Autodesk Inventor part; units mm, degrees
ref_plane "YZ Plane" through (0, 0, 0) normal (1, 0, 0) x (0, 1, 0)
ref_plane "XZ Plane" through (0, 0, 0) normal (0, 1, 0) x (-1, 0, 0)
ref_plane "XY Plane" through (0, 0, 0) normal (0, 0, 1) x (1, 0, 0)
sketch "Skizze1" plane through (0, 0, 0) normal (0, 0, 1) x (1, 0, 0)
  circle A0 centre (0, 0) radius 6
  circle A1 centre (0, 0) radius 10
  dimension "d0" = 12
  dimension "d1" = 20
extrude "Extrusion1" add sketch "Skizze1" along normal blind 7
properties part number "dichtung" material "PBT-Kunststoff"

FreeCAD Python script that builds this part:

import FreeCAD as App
import Part
import Sketcher
Q = App.Units.Quantity

doc = App.newDocument("Part")
body = doc.addObject("PartDesign::Body", "Body")

# Sketch on XY plane
sketch1 = doc.addObject("Sketcher::SketchObject", "Sketch")
body.addObject(sketch1)
sketch1.AttachmentSupport = (doc.XY_Plane, [""])
sketch1.MapMode = "FlatFace"
sketch1.addGeometry(Part.Circle(App.Vector(0, 0, 0), App.Vector(0, 0, 1), 10), False)
sketch1.addGeometry(Part.Circle(App.Vector(0, 0, 0), App.Vector(0, 0, 1), 6), False)
sketch1.addConstraint(Sketcher.Constraint("Coincident", 0, 3, -1, 1))
sketch1.addConstraint(Sketcher.Constraint("Coincident", 1, 3, -1, 1))
sketch1.addConstraint(Sketcher.Constraint("Diameter", 0, Q("20 mm")))
sketch1.addConstraint(Sketcher.Constraint("Diameter", 1, Q("12 mm")))
pad1 = doc.addObject("PartDesign::Pad", "Pad")
body.addObject(pad1)
pad1.Profile = sketch1
pad1.Length = 7

doc.recompute()
